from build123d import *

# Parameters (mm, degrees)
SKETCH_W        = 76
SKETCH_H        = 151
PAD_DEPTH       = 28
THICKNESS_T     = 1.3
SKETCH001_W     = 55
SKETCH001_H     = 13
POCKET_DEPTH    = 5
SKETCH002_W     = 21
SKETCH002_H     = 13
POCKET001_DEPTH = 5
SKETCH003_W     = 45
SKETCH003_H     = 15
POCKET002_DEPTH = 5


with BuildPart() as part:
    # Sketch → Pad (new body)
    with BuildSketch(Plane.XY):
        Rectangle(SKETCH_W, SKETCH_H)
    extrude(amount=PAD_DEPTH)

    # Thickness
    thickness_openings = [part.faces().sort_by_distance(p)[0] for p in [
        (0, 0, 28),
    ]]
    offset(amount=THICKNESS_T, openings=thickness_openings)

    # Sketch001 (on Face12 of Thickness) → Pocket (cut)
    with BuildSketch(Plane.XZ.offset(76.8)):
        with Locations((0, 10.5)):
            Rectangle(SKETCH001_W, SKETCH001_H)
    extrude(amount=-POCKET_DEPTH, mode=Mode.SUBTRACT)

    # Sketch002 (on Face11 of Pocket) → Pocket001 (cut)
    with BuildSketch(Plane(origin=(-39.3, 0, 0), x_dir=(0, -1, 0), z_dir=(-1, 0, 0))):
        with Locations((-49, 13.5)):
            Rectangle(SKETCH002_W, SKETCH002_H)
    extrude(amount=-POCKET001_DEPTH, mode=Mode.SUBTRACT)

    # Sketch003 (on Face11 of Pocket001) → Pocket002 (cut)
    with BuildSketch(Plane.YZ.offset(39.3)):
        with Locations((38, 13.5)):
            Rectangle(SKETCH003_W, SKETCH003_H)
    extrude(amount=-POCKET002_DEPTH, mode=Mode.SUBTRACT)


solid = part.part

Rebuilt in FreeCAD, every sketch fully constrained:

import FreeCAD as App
import Part
import Sketcher

V = App.Vector


def faces_at(feature, points):
    """Names of the faces that lie closest to the given points."""
    faces = feature.Shape.Faces
    near = lambda p: min(range(len(faces)), key=lambda i: faces[i].distToShape(Part.Vertex(*p))[0])
    return sorted({f"Face{near(p) + 1}" for p in points})


def add_polygon(sketch, points):
    """Adds a closed chain of lines whose ends are joined by coincident constraints."""
    first, n = sketch.GeometryCount, len(points)
    for a, b in zip(points, points[1:] + points[:1]):
        sketch.addGeometry(Part.LineSegment(App.Vector(*a, 0), App.Vector(*b, 0)), False)
    for i in range(n):
        sketch.addConstraint(Sketcher.Constraint("Coincident", first + i, 2, first + (i + 1) % n, 1))

doc = App.newDocument("Part")
params = doc.addObject("Spreadsheet::Sheet", "Params")
for row, (alias, value) in enumerate([
    ("sketch1_width", "76 mm"),
    ("sketch1_height", "151 mm"),
    ("pad1_length", "28 mm"),
    ("thickness_wall", "1.3 mm"),
    ("sketch2_width", "55 mm"),
    ("sketch2_height", "13 mm"),
    ("pocket1_length", "5 mm"),
    ("sketch3_width", "21 mm"),
    ("sketch3_height", "13 mm"),
    ("pocket2_length", "5 mm"),
    ("sketch4_width", "45 mm"),
    ("sketch4_height", "15 mm"),
    ("pocket3_length", "5 mm"),
], start=1):
    params.set(f"A{row}", alias)
    params.set(f"B{row}", "=" + value)
    params.setAlias(f"B{row}", alias)

body = doc.addObject("PartDesign::Body", "Body")

sketch1 = body.newObject("Sketcher::SketchObject", "Sketch")
sketch1.AttachmentSupport = (doc.getObject("XY_Plane"), [""])
sketch1.MapMode = "FlatFace"
add_polygon(sketch1, [(-38, 75.5), (-38, -75.5), (38, -75.5), (38, 75.5)])
sketch1.addConstraint([
    Sketcher.Constraint("Vertical", 0),
    Sketcher.Constraint("Horizontal", 1),
    Sketcher.Constraint("Vertical", 2),
    Sketcher.Constraint("Horizontal", 3),
    Sketcher.Constraint("Symmetric", 0, 2, 2, 2, -1, 1),
    Sketcher.Constraint("DistanceX", 1, 1, 1, 2, 76.0),
    Sketcher.Constraint("DistanceY", 0, 2, 0, 1, 151.0),
])
sketch1.setExpression("Constraints[9]", "Params.sketch1_width")
sketch1.setExpression("Constraints[10]", "Params.sketch1_height")
pad1 = body.newObject("PartDesign::Pad", "Pad")
pad1.Profile = sketch1
pad1.setExpression("Length", "Params.pad1_length")
doc.recompute()

thickness = body.newObject("PartDesign::Thickness", "Thickness")
thickness.Base = (pad1, faces_at(pad1, [(0, 0, 28)]))
thickness.setExpression("Value", "Params.thickness_wall")
thickness.Reversed = False
thickness.Join = "Arc"

sketch2 = body.newObject("Sketcher::SketchObject", "Sketch001")
sketch2.AttachmentSupport = (doc.getObject("XZ_Plane"), [""])
sketch2.MapMode = "FlatFace"
sketch2.AttachmentOffset = App.Placement(V(0, 0, 76.8), App.Rotation())
add_polygon(sketch2, [(-27.5, 17), (-27.5, 4), (27.5, 4), (27.5, 17)])
sketch2.addConstraint([
    Sketcher.Constraint("Vertical", 0),
    Sketcher.Constraint("Horizontal", 1),
    Sketcher.Constraint("Vertical", 2),
    Sketcher.Constraint("Horizontal", 3),
    Sketcher.Constraint("DistanceX", 1, 1, 1, 2, 55.0),
    Sketcher.Constraint("DistanceY", 0, 2, 0, 1, 13.0),
    Sketcher.Constraint("DistanceY", -1, 1, 0, 2, 4.0),
    Sketcher.Constraint("DistanceX", 0, 2, -1, 1, 27.5),
])
sketch2.setExpression("Constraints[8]", "Params.sketch2_width")
sketch2.setExpression("Constraints[9]", "Params.sketch2_height")
pocket1 = body.newObject("PartDesign::Pocket", "Pocket")
pocket1.Profile = sketch2
pocket1.setExpression("Length", "Params.pocket1_length")

sketch3 = body.newObject("Sketcher::SketchObject", "Sketch002")
sketch3.AttachmentSupport = (doc.getObject("YZ_Plane"), [""])
sketch3.MapMode = "FlatFace"
sketch3.AttachmentOffset = App.Placement(V(0, 0, -39.3), App.Rotation())
add_polygon(sketch3, [(59.5, 20), (59.5, 7), (38.5, 7), (38.5, 20)])
sketch3.addConstraint([
    Sketcher.Constraint("Vertical", 0),
    Sketcher.Constraint("Horizontal", 1),
    Sketcher.Constraint("Vertical", 2),
    Sketcher.Constraint("Horizontal", 3),
    Sketcher.Constraint("DistanceX", 1, 2, 1, 1, 21.0),
    Sketcher.Constraint("DistanceY", 0, 2, 0, 1, 13.0),
    Sketcher.Constraint("DistanceY", -1, 1, 0, 2, 7.0),
    Sketcher.Constraint("DistanceX", -1, 1, 0, 2, 59.5),
])
sketch3.setExpression("Constraints[8]", "Params.sketch3_width")
sketch3.setExpression("Constraints[9]", "Params.sketch3_height")
pocket2 = body.newObject("PartDesign::Pocket", "Pocket001")
pocket2.Profile = sketch3
pocket2.setExpression("Length", "Params.pocket2_length")
pocket2.Reversed = True

sketch4 = body.newObject("Sketcher::SketchObject", "Sketch003")
sketch4.AttachmentSupport = (doc.getObject("YZ_Plane"), [""])
sketch4.MapMode = "FlatFace"
sketch4.AttachmentOffset = App.Placement(V(0, 0, 39.3), App.Rotation())
add_polygon(sketch4, [(15.5, 21), (15.5, 6), (60.5, 6), (60.5, 21)])
sketch4.addConstraint([
    Sketcher.Constraint("Vertical", 0),
    Sketcher.Constraint("Horizontal", 1),
    Sketcher.Constraint("Vertical", 2),
    Sketcher.Constraint("Horizontal", 3),
    Sketcher.Constraint("DistanceX", 1, 1, 1, 2, 45.0),
    Sketcher.Constraint("DistanceY", 0, 2, 0, 1, 15.0),
    Sketcher.Constraint("DistanceY", -1, 1, 0, 2, 6.0),
    Sketcher.Constraint("DistanceX", -1, 1, 0, 2, 15.5),
])
sketch4.setExpression("Constraints[8]", "Params.sketch4_width")
sketch4.setExpression("Constraints[9]", "Params.sketch4_height")
pocket3 = body.newObject("PartDesign::Pocket", "Pocket002")
pocket3.Profile = sketch4
pocket3.setExpression("Length", "Params.pocket3_length")

doc.recompute()
